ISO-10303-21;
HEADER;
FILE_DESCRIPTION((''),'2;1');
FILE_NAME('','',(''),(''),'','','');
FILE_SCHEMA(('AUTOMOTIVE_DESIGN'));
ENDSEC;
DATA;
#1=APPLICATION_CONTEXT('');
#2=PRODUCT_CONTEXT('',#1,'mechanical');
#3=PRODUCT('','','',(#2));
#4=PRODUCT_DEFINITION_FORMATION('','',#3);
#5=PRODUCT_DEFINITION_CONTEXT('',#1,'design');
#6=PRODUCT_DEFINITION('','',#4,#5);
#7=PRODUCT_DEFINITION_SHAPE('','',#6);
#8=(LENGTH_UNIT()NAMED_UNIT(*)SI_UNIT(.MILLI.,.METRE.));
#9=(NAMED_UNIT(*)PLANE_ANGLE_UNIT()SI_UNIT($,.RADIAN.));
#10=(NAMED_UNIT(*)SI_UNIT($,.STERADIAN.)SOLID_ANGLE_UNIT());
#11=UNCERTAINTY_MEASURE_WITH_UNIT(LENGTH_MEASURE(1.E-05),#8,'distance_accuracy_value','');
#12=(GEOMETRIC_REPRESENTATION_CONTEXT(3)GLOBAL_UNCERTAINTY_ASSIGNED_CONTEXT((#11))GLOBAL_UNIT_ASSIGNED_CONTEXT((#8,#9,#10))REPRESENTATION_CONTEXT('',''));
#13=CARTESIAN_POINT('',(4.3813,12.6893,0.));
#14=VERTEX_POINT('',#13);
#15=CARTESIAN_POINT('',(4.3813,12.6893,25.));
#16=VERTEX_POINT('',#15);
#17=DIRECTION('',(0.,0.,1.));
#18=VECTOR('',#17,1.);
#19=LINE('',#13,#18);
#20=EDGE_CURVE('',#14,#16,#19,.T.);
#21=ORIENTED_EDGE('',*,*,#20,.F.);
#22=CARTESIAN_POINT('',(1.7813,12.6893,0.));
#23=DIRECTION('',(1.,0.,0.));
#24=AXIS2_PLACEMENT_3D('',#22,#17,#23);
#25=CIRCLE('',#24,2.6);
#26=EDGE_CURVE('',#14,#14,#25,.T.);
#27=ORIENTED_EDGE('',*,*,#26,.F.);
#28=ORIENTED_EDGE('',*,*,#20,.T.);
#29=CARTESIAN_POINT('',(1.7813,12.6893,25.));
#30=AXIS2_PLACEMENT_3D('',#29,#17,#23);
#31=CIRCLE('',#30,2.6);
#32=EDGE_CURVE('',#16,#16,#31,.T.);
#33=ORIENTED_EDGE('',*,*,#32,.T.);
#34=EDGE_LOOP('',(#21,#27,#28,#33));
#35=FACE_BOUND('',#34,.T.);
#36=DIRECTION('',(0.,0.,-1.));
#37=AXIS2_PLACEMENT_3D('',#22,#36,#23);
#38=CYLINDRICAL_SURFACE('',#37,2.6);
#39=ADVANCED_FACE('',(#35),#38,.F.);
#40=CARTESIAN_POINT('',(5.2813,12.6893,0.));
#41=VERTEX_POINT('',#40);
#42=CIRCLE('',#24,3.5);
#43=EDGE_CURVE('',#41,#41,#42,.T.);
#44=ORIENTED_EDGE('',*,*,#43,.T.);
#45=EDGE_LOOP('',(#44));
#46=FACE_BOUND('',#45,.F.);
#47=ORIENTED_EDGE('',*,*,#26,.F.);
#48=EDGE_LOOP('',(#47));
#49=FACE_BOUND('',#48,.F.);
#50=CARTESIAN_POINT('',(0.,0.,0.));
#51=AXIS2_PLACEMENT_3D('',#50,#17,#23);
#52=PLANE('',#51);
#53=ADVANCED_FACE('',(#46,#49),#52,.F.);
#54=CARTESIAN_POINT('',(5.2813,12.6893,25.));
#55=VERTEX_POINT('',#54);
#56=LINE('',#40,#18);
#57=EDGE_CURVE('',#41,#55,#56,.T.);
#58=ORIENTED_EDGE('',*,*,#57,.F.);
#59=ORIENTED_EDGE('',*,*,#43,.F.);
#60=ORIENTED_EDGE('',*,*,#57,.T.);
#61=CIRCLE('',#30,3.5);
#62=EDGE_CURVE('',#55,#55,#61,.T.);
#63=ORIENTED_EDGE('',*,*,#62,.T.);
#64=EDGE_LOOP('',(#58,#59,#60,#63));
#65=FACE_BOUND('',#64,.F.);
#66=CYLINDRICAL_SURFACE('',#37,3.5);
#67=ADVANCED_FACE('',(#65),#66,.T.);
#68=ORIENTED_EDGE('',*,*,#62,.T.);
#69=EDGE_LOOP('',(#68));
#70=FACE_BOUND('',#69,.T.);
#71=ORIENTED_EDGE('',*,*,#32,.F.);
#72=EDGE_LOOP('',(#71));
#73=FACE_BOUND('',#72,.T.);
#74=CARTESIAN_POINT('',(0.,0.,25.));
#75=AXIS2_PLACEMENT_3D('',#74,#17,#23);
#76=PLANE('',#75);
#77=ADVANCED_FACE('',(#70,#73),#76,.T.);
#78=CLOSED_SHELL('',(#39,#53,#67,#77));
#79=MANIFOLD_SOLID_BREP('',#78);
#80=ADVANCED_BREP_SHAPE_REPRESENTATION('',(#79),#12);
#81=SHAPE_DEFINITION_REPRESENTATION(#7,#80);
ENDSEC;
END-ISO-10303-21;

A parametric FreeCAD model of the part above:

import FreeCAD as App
import Part
import Sketcher
Q = App.Units.Quantity

doc = App.newDocument("Part")
body = doc.addObject("PartDesign::Body", "Body")

# Sketch on XY plane
sketch1 = doc.addObject("Sketcher::SketchObject", "Sketch")
body.addObject(sketch1)
sketch1.AttachmentSupport = (doc.XY_Plane, [""])
sketch1.MapMode = "FlatFace"
sketch1.addGeometry(Part.Circle(App.Vector(1.7813, 12.6893, 0), App.Vector(0, 0, 1), 3.5), False)
sketch1.addGeometry(Part.Circle(App.Vector(1.7813, 12.6893, 0), App.Vector(0, 0, 1), 2.6), False)
sketch1.addConstraint(Sketcher.Constraint("Coincident", 1, 3, 0, 3))
sketch1.addConstraint(Sketcher.Constraint("Diameter", 0, Q("7 mm")))
sketch1.addConstraint(Sketcher.Constraint("Diameter", 1, Q("5.2 mm")))
sketch1.addConstraint(Sketcher.Constraint("DistanceX", -1, 1, 0, 3, Q("1.7813 mm")))
sketch1.addConstraint(Sketcher.Constraint("DistanceY", -1, 1, 0, 3, Q("12.6893 mm")))
pad1 = doc.addObject("PartDesign::Pad", "Pad")
body.addObject(pad1)
pad1.Profile = sketch1
pad1.Length = 25

doc.recompute()
